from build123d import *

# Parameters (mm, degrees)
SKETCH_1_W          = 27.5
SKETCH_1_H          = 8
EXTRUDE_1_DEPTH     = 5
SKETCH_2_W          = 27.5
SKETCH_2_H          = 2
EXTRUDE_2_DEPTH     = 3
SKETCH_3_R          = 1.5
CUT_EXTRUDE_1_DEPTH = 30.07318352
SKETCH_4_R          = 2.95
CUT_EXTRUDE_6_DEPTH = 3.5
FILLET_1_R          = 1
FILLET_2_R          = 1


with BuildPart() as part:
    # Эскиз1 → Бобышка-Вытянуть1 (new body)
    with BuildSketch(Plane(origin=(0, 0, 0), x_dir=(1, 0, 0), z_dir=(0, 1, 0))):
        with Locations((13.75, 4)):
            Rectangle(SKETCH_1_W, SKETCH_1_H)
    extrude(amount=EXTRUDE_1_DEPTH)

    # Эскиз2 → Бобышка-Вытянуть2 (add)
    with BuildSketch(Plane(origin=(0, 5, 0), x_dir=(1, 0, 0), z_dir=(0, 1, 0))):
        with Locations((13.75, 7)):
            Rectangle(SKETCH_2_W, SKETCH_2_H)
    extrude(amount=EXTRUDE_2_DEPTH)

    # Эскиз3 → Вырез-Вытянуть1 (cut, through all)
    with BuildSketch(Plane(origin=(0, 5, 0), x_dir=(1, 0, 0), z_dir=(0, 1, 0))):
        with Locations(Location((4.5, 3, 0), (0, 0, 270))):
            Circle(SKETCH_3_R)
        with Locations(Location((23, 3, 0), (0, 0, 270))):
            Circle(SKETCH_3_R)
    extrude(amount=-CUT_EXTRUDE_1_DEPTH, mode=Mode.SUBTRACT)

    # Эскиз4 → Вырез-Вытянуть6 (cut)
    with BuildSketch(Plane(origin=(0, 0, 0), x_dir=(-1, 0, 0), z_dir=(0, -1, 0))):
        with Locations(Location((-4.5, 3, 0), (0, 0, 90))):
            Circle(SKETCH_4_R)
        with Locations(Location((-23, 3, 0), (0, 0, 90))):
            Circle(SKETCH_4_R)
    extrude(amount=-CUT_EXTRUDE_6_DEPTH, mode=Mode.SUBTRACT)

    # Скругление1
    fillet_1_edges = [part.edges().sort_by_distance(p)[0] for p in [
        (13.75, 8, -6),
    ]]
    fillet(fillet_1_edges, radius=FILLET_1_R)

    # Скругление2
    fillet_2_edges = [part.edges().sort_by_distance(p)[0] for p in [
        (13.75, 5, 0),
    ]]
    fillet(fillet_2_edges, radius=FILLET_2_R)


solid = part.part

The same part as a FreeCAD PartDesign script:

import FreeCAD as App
import Part
import Sketcher

V = App.Vector


def edges_at(feature, points):
    """Names of the edges that pass closest to the given points."""
    edges = feature.Shape.Edges
    near = lambda p: min(range(len(edges)), key=lambda i: edges[i].distToShape(Part.Vertex(*p))[0])
    return sorted({f"Edge{near(p) + 1}" for p in points})


def add_polygon(sketch, points):
    """Adds a closed chain of lines whose ends are joined by coincident constraints."""
    first, n = sketch.GeometryCount, len(points)
    for a, b in zip(points, points[1:] + points[:1]):
        sketch.addGeometry(Part.LineSegment(App.Vector(*a, 0), App.Vector(*b, 0)), False)
    for i in range(n):
        sketch.addConstraint(Sketcher.Constraint("Coincident", first + i, 2, first + (i + 1) % n, 1))

doc = App.newDocument("Part")
body = doc.addObject("PartDesign::Body", "Body")

# Sketch on XZ plane
sketch1 = doc.addObject("Sketcher::SketchObject", "Sketch")
body.addObject(sketch1)
sketch1.AttachmentSupport = (doc.XZ_Plane, [""])
sketch1.MapMode = "FlatFace"
add_polygon(sketch1, [(0, -8), (0, 0), (28, 0), (28, -8)])  # lines 0-3
sketch1.addConstraint([
    Sketcher.Constraint("Vertical", 0),
    Sketcher.Constraint("Horizontal", 1),
    Sketcher.Constraint("Vertical", 2),
    Sketcher.Constraint("Horizontal", 3),
    Sketcher.Constraint("Coincident", 0, 2, -1, 1),
    Sketcher.Constraint("DistanceY", 0, 1, 0, 2, 8.0),
    Sketcher.Constraint("DistanceX", 1, 1, 1, 2, 27.5),
])
pad1 = doc.addObject("PartDesign::Pad", "Pad")
body.addObject(pad1)
pad1.Profile = sketch1
pad1.Length = 5
pad1.Reversed = True

# Sketch on XZ plane
sketch2 = doc.addObject("Sketcher::SketchObject", "Sketch001")
body.addObject(sketch2)
sketch2.AttachmentSupport = (doc.XZ_Plane, [""])
sketch2.MapMode = "FlatFace"
sketch2.AttachmentOffset = App.Placement(V(0, 0, -5), App.Rotation())
add_polygon(sketch2, [(0, -8), (0, -6), (27.5, -6), (27.5, -8)])  # lines 0-3
sketch2.addConstraint([
    Sketcher.Constraint("Vertical", 0),
    Sketcher.Constraint("Horizontal", 1),
    Sketcher.Constraint("Vertical", 2),
    Sketcher.Constraint("Horizontal", 3),
    Sketcher.Constraint("PointOnObject", 0, 2, -2),
    Sketcher.Constraint("DistanceY", 0, 1, 0, 2, 2.0),
    Sketcher.Constraint("DistanceX", 1, 1, 1, 2, 27.5),
    Sketcher.Constraint("DistanceY", 0, 2, -1, 1, 6.0),
])
pad2 = doc.addObject("PartDesign::Pad", "Pad001")
body.addObject(pad2)
pad2.Profile = sketch2
pad2.Length = 3
pad2.Reversed = True

# Sketch on XZ plane
sketch3 = doc.addObject("Sketcher::SketchObject", "Sketch002")
body.addObject(sketch3)
sketch3.AttachmentSupport = (doc.XZ_Plane, [""])
sketch3.MapMode = "FlatFace"
sketch3.AttachmentOffset = App.Placement(V(0, 0, -5), App.Rotation())
sketch3.addGeometry([
    Part.Circle(V(4.5, -3, 0), V(0, 0, 1), 1.5),
    Part.Circle(V(23, -3, 0), V(0, 0, 1), 1.5),
], False)
sketch3.addConstraint([
    Sketcher.Constraint("Equal", 0, 1),
    Sketcher.Constraint("Horizontal", 0, 3, 1, 3),
    Sketcher.Constraint("Diameter", 0, 3.0),
    Sketcher.Constraint("DistanceY", 0, 3, -1, 1, 3.0),
    Sketcher.Constraint("DistanceX", -1, 1, 1, 3, 23.0),
    Sketcher.Constraint("DistanceX", -1, 1, 0, 3, 4.5),
])
pocket1 = doc.addObject("PartDesign::Pocket", "Pocket")
body.addObject(pocket1)
pocket1.Profile = sketch3
pocket1.Type = "ThroughAll"
pocket1.Reversed = True

# Sketch on XZ plane
sketch4 = doc.addObject("Sketcher::SketchObject", "Sketch003")
body.addObject(sketch4)
sketch4.AttachmentSupport = (doc.XZ_Plane, [""])
sketch4.MapMode = "FlatFace"
sketch4.addGeometry([
    Part.Circle(V(4.5, -3, 0), V(0, 0, 1), 3),
    Part.Circle(V(23, -3, 0), V(0, 0, 1), 3),
], False)
sketch4.addConstraint([
    Sketcher.Constraint("Equal", 0, 1),
    Sketcher.Constraint("Horizontal", 0, 3, 1, 3),
    Sketcher.Constraint("Diameter", 0, 5.9),
    Sketcher.Constraint("DistanceY", 0, 3, -1, 1, 3.0),
    Sketcher.Constraint("DistanceX", -1, 1, 1, 3, 23.0),
    Sketcher.Constraint("DistanceX", -1, 1, 0, 3, 4.5),
])
pocket2 = doc.addObject("PartDesign::Pocket", "Pocket001")
body.addObject(pocket2)
pocket2.Profile = sketch4
pocket2.Length = 3.5
doc.recompute()

fillet = doc.addObject("PartDesign::Fillet", "Fillet")
body.addObject(fillet)
fillet.Base = (pocket2, edges_at(pocket2, [(13.75, 8, -6)]))
fillet.Radius = 1
doc.recompute()

fillet2 = doc.addObject("PartDesign::Fillet", "Fillet001")
body.addObject(fillet2)
fillet2.Base = (fillet, edges_at(fillet, [(13.75, 5, 0)]))
fillet2.Radius = 1

doc.recompute()
